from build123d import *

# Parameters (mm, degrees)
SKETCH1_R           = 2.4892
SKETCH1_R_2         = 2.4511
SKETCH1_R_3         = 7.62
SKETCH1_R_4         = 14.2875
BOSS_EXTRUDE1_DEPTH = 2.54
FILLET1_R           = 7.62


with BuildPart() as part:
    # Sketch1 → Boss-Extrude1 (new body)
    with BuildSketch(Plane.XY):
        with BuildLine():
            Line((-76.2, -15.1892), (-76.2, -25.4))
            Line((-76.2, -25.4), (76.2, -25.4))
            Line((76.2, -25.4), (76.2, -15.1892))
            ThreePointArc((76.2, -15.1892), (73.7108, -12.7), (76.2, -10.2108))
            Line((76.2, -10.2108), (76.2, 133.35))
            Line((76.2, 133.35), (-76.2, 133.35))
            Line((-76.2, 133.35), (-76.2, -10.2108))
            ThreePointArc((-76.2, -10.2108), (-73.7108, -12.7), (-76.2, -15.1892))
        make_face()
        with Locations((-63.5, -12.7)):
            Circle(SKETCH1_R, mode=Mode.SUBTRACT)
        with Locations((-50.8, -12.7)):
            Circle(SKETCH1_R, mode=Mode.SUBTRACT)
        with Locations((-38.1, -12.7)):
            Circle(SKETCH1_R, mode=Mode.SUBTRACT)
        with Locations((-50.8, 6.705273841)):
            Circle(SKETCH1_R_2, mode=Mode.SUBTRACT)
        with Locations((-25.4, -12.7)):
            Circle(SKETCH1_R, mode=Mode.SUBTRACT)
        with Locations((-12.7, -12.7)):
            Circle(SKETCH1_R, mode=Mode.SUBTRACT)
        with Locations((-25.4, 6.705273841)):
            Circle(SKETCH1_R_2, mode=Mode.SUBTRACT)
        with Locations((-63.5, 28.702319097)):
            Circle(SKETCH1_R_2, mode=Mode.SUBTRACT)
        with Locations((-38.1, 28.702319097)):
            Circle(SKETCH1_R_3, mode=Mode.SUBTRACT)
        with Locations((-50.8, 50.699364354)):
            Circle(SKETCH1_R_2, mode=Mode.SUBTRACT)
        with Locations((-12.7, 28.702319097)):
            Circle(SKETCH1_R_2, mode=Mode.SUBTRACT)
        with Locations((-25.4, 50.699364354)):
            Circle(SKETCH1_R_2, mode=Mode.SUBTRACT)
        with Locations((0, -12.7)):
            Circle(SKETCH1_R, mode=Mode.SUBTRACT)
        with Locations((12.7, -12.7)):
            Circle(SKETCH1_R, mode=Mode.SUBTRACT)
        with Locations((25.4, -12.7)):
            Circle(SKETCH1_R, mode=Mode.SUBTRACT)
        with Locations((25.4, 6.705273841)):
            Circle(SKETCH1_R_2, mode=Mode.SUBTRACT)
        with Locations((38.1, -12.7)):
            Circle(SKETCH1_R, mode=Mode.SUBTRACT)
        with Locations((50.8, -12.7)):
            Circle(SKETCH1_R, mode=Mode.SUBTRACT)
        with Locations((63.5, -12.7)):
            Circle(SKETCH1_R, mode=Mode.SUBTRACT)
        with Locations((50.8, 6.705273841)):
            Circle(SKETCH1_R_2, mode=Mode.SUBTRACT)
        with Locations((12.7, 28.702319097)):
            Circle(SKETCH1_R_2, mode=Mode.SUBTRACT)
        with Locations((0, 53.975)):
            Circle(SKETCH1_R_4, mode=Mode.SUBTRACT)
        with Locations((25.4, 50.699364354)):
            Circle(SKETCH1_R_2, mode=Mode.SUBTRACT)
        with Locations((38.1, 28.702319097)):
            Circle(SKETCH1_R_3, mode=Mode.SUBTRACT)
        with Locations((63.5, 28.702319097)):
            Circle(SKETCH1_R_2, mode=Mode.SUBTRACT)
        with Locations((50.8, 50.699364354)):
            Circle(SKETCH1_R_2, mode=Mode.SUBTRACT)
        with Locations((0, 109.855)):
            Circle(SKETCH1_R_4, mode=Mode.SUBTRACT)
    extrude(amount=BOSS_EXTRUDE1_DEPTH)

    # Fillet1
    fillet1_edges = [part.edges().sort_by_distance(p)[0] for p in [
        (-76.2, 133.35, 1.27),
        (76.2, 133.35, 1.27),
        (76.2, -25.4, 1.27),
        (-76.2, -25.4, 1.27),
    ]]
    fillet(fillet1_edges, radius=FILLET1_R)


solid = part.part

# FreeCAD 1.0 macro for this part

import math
import FreeCAD as App
import Part
import Sketcher

V = App.Vector
Q = App.Units.Quantity


def edges_at(feature, points):
    """Names of the edges that pass closest to the given points."""
    edges = feature.Shape.Edges
    near = lambda p: min(range(len(edges)), key=lambda i: edges[i].distToShape(Part.Vertex(*p))[0])
    return sorted({f"Edge{near(p) + 1}" for p in points})

doc = App.newDocument("Part")
params = doc.addObject("Spreadsheet::Sheet", "Params")
for row, (alias, value) in enumerate([
    ("sketch1_diameter", "0.6 in"),
    ("sketch1_width", "6 in"),
    ("sketch1_diameter2", "0.196 in"),
    ("sketch1_diameter3", "0.193 in"),
    ("sketch1_diameter4", "1.125 in"),
    ("pad1_length", "0.1 in"),
    ("fillet_radius", "0.3 in"),
], start=1):
    params.set(f"A{row}", alias)
    params.set(f"B{row}", "=" + value)
    params.setAlias(f"B{row}", alias)

body = doc.addObject("PartDesign::Body", "Body")

sketch1 = doc.addObject("Sketcher::SketchObject", "Sketch")
body.addObject(sketch1)
sketch1.AttachmentSupport = (doc.XY_Plane, [""])
sketch1.MapMode = "FlatFace"
sketch1.addGeometry(Part.LineSegment(V(-76.2, -15.2, 0), V(-76.2, -25.4, 0)), False)
sketch1.addGeometry(Part.LineSegment(V(-76.2, -25.4, 0), V(76.2, -25.4, 0)), False)
sketch1.addGeometry(Part.LineSegment(V(76.2, -25.4, 0), V(76.2, -15.2, 0)), False)
sketch1.addGeometry(Part.ArcOfCircle(Part.Circle(V(76.2, -12.7, 0), V(0, 0, 1), 2.5), math.radians(90), math.radians(270)), False)
sketch1.addGeometry(Part.LineSegment(V(76.2, -10.2, 0), V(76.2, 133.3, 0)), False)
sketch1.addGeometry(Part.LineSegment(V(76.2, 133.3, 0), V(-76.2, 133.3, 0)), False)
sketch1.addGeometry(Part.LineSegment(V(-76.2, 133.3, 0), V(-76.2, -10.2, 0)), False)
sketch1.addGeometry(Part.ArcOfCircle(Part.Circle(V(-76.2, -12.7, 0), V(0, 0, 1), 2.5), math.radians(-90), math.radians(90)), False)
sketch1.addGeometry(Part.Circle(V(-63.5, -12.7, 0), V(0, 0, 1), 2.5), False)
sketch1.addGeometry(Part.Circle(V(-50.8, -12.7, 0), V(0, 0, 1), 2.5), False)
sketch1.addGeometry(Part.Circle(V(-38.1, -12.7, 0), V(0, 0, 1), 2.5), False)
sketch1.addGeometry(Part.Circle(V(-50.8, 6.7, 0), V(0, 0, 1), 2.5), False)
sketch1.addGeometry(Part.Circle(V(-25.4, -12.7, 0), V(0, 0, 1), 2.5), False)
sketch1.addGeometry(Part.Circle(V(-12.7, -12.7, 0), V(0, 0, 1), 2.5), False)
sketch1.addGeometry(Part.Circle(V(-25.4, 6.7, 0), V(0, 0, 1), 2.5), False)
sketch1.addGeometry(Part.Circle(V(-63.5, 28.7, 0), V(0, 0, 1), 2.5), False)
sketch1.addGeometry(Part.Circle(V(-38.1, 28.7, 0), V(0, 0, 1), 7.6), False)
sketch1.addGeometry(Part.Circle(V(-50.8, 50.7, 0), V(0, 0, 1), 2.5), False)
sketch1.addGeometry(Part.Circle(V(-12.7, 28.7, 0), V(0, 0, 1), 2.5), False)
sketch1.addGeometry(Part.Circle(V(-25.4, 50.7, 0), V(0, 0, 1), 2.5), False)
sketch1.addGeometry(Part.Circle(V(0, -12.7, 0), V(0, 0, 1), 2.5), False)
sketch1.addGeometry(Part.Circle(V(12.7, -12.7, 0), V(0, 0, 1), 2.5), False)
sketch1.addGeometry(Part.Circle(V(25.4, -12.7, 0), V(0, 0, 1), 2.5), False)
sketch1.addGeometry(Part.Circle(V(25.4, 6.7, 0), V(0, 0, 1), 2.5), False)
sketch1.addGeometry(Part.Circle(V(38.1, -12.7, 0), V(0, 0, 1), 2.5), False)
sketch1.addGeometry(Part.Circle(V(50.8, -12.7, 0), V(0, 0, 1), 2.5), False)
sketch1.addGeometry(Part.Circle(V(63.5, -12.7, 0), V(0, 0, 1), 2.5), False)
sketch1.addGeometry(Part.Circle(V(50.8, 6.7, 0), V(0, 0, 1), 2.5), False)
sketch1.addGeometry(Part.Circle(V(12.7, 28.7, 0), V(0, 0, 1), 2.5), False)
sketch1.addGeometry(Part.Circle(V(0, 54, 0), V(0, 0, 1), 14.3), False)
sketch1.addGeometry(Part.Circle(V(25.4, 50.7, 0), V(0, 0, 1), 2.5), False)
sketch1.addGeometry(Part.Circle(V(38.1, 28.7, 0), V(0, 0, 1), 7.6), False)
sketch1.addGeometry(Part.Circle(V(63.5, 28.7, 0), V(0, 0, 1), 2.5), False)
sketch1.addGeometry(Part.Circle(V(50.8, 50.7, 0), V(0, 0, 1), 2.5), False)
sketch1.addGeometry(Part.Circle(V(0, 109.9, 0), V(0, 0, 1), 14.3), False)
sketch1.addConstraint(Sketcher.Constraint("Coincident", 0, 2, 1, 1))
sketch1.addConstraint(Sketcher.Constraint("Coincident", 1, 2, 2, 1))
sketch1.addConstraint(Sketcher.Constraint("Coincident", 2, 2, 3, 2))
sketch1.addConstraint(Sketcher.Constraint("Coincident", 3, 1, 4, 1))
sketch1.addConstraint(Sketcher.Constraint("Coincident", 4, 2, 5, 1))
sketch1.addConstraint(Sketcher.Constraint("Coincident", 5, 2, 6, 1))
sketch1.addConstraint(Sketcher.Constraint("Coincident", 6, 2, 7, 2))
sketch1.addConstraint(Sketcher.Constraint("Coincident", 7, 1, 0, 1))
sketch1.addConstraint(Sketcher.Constraint("Vertical", 0))
sketch1.addConstraint(Sketcher.Constraint("Horizontal", 1))
sketch1.addConstraint(Sketcher.Constraint("Vertical", 2))
sketch1.addConstraint(Sketcher.Constraint("Vertical", 4))
sketch1.addConstraint(Sketcher.Constraint("Horizontal", 5))
sketch1.addConstraint(Sketcher.Constraint("Vertical", 6))
sketch1.addConstraint(Sketcher.Constraint("Equal", 3, 7))
sketch1.addConstraint(Sketcher.Constraint("Equal", 7, 8))
sketch1.addConstraint(Sketcher.Constraint("Equal", 8, 9))
sketch1.addConstraint(Sketcher.Constraint("Equal", 9, 10))
sketch1.addConstraint(Sketcher.Constraint("Equal", 10, 12))
sketch1.addConstraint(Sketcher.Constraint("Equal", 12, 13))
sketch1.addConstraint(Sketcher.Constraint("Equal", 11, 14))
sketch1.addConstraint(Sketcher.Constraint("Equal", 14, 15))
sketch1.addConstraint(Sketcher.Constraint("Equal", 15, 17))
sketch1.addConstraint(Sketcher.Constraint("Equal", 17, 18))
sketch1.addConstraint(Sketcher.Constraint("Equal", 18, 19))
sketch1.addConstraint(Sketcher.Constraint("Equal", 13, 20))
sketch1.addConstraint(Sketcher.Constraint("Equal", 20, 21))
sketch1.addConstraint(Sketcher.Constraint("Equal", 21, 22))
sketch1.addConstraint(Sketcher.Constraint("Equal", 19, 23))
sketch1.addConstraint(Sketcher.Constraint("Equal", 22, 24))
sketch1.addConstraint(Sketcher.Constraint("Equal", 24, 25))
sketch1.addConstraint(Sketcher.Constraint("Equal", 25, 26))
sketch1.addConstraint(Sketcher.Constraint("Equal", 23, 27))
sketch1.addConstraint(Sketcher.Constraint("Equal", 27, 28))
sketch1.addConstraint(Sketcher.Constraint("Equal", 28, 30))
sketch1.addConstraint(Sketcher.Constraint("Equal", 16, 31))
sketch1.addConstraint(Sketcher.Constraint("Equal", 30, 32))
sketch1.addConstraint(Sketcher.Constraint("Equal", 32, 33))
sketch1.addConstraint(Sketcher.Constraint("Equal", 29, 34))
sketch1.addConstraint(Sketcher.Constraint("Symmetric", 3, 3, 7, 3, -2))
sketch1.addConstraint(Sketcher.Constraint("Symmetric", 13, 3, 21, 3, -2))
sketch1.addConstraint(Sketcher.Constraint("Symmetric", 12, 3, 22, 3, -2))
sketch1.addConstraint(Sketcher.Constraint("Symmetric", 14, 3, 23, 3, -2))
sketch1.addConstraint(Sketcher.Constraint("Symmetric", 10, 3, 24, 3, -2))
sketch1.addConstraint(Sketcher.Constraint("Symmetric", 9, 3, 25, 3, -2))
sketch1.addConstraint(Sketcher.Constraint("Symmetric", 8, 3, 26, 3, -2))
sketch1.addConstraint(Sketcher.Constraint("Symmetric", 11, 3, 27, 3, -2))
sketch1.addConstraint(Sketcher.Constraint("Symmetric", 18, 3, 28, 3, -2))
sketch1.addConstraint(Sketcher.Constraint("Symmetric", 19, 3, 30, 3, -2))
sketch1.addConstraint(Sketcher.Constraint("Symmetric", 16, 3, 31, 3, -2))
sketch1.addConstraint(Sketcher.Constraint("Symmetric", 15, 3, 32, 3, -2))
sketch1.addConstraint(Sketcher.Constraint("Symmetric", 17, 3, 33, 3, -2))
sketch1.addConstraint(Sketcher.Constraint("PointOnObject", 20, 3, -2))
sketch1.addConstraint(Sketcher.Constraint("PointOnObject", 29, 3, -2))
sketch1.addConstraint(Sketcher.Constraint("PointOnObject", 34, 3, -2))
sketch1.addConstraint(Sketcher.Constraint("Horizontal", 7, 3, 8, 3))
sketch1.addConstraint(Sketcher.Constraint("Horizontal", 8, 3, 9, 3))
sketch1.addConstraint(Sketcher.Constraint("Horizontal", 9, 3, 10, 3))
sketch1.addConstraint(Sketcher.Constraint("Horizontal", 10, 3, 12, 3))
sketch1.addConstraint(Sketcher.Constraint("Horizontal", 12, 3, 13, 3))
sketch1.addConstraint(Sketcher.Constraint("Horizontal", 11, 3, 14, 3))
sketch1.addConstraint(Sketcher.Constraint("Horizontal", 15, 3, 16, 3))
sketch1.addConstraint(Sketcher.Constraint("Horizontal", 16, 3, 18, 3))
sketch1.addConstraint(Sketcher.Constraint("Horizontal", 17, 3, 19, 3))
sketch1.addConstraint(Sketcher.Constraint("Horizontal", 13, 3, 20, 3))
sketch1.addConstraint(Sketcher.Constraint("Vertical", 9, 3, 11, 3))
sketch1.addConstraint(Sketcher.Constraint("Vertical", 12, 3, 14, 3))
sketch1.addConstraint(Sketcher.Constraint("Vertical", 8, 3, 15, 3))
sketch1.addConstraint(Sketcher.Constraint("Vertical", 10, 3, 16, 3))
sketch1.addConstraint(Sketcher.Constraint("Vertical", 11, 3, 17, 3))
sketch1.addConstraint(Sketcher.Constraint("Vertical", 13, 3, 18, 3))
sketch1.addConstraint(Sketcher.Constraint("Vertical", 14, 3, 19, 3))
sketch1.addConstraint(Sketcher.Constraint("Vertical", 7, 3, 0, 2))
sketch1.addConstraint(Sketcher.Constraint("Vertical", 3, 3, 1, 2))
sketch1.addConstraint(Sketcher.Constraint("Vertical", 2, 2, 3, 1))
sketch1.addConstraint(Sketcher.Constraint("Vertical", 0, 2, 5, 2))
sketch1.addConstraint(Sketcher.Constraint("Diameter", 16, Q("0.6 in")))
sketch1.addConstraint(Sketcher.Constraint("DistanceX", 1, 1, 1, 2, Q("6 in")))
sketch1.addConstraint(Sketcher.Constraint("Diameter", 8, Q("0.196 in")))
sketch1.addConstraint(Sketcher.Constraint("Diameter", 11, Q("0.193 in")))
sketch1.addConstraint(Sketcher.Constraint("Diameter", 29, Q("1.125 in")))
sketch1.addConstraint(Sketcher.Constraint("DistanceX", 9, 3, -1, 1, Q("2 in")))
sketch1.addConstraint(Sketcher.Constraint("DistanceX", 12, 3, -1, 1, Q("1 in")))
sketch1.addConstraint(Sketcher.Constraint("DistanceY", 0, 2, -1, 1, Q("1 in")))
sketch1.addConstraint(Sketcher.Constraint("DistanceX", 8, 3, 10, 3, Q("1 in")))
sketch1.addConstraint(Sketcher.Constraint("DistanceX", 10, 3, 13, 3, Q("1 in")))
sketch1.addConstraint(Sketcher.Constraint("DistanceX", 13, 3, 21, 3, Q("1 in")))
sketch1.addConstraint(Sketcher.Constraint("DistanceY", 3, 3, -1, 1, Q("0.5 in")))
sketch1.addConstraint(Sketcher.Constraint("DistanceY", 29, 3, 34, 3, Q("2.2 in")))
sketch1.addConstraint(Sketcher.Constraint("DistanceY", 4, 1, 4, 2, Q("5.652 in")))
sketch1.addConstraint(Sketcher.Constraint("DistanceY", -1, 1, 29, 3, Q("2.125 in")))
sketch1.addConstraint(Sketcher.Constraint("DistanceY", -1, 1, 15, 3, 28.702319))
sketch1.addConstraint(Sketcher.Constraint("DistanceY", 11, 3, 17, 3, 43.994091))
sketch1.addConstraint(Sketcher.Constraint("DistanceY", -1, 1, 11, 3, 6.705274))
sketch1.setExpression("Constraints[76]", "Params.sketch1_diameter")
sketch1.setExpression("Constraints[77]", "Params.sketch1_width")
sketch1.setExpression("Constraints[78]", "Params.sketch1_diameter2")
sketch1.setExpression("Constraints[79]", "Params.sketch1_diameter3")
sketch1.setExpression("Constraints[80]", "Params.sketch1_diameter4")
pad1 = doc.addObject("PartDesign::Pad", "Pad")
body.addObject(pad1)
pad1.Profile = sketch1
pad1.setExpression("Length", "Params.pad1_length")
doc.recompute()

fillet = doc.addObject("PartDesign::Fillet", "Fillet")
body.addObject(fillet)
fillet.Base = (pad1, edges_at(pad1, [
    (-76.2, 133.35, 1.27),
    (76.2, 133.35, 1.27),
    (76.2, -25.4, 1.27),
    (-76.2, -25.4, 1.27),
]))
fillet.setExpression("Radius", "Params.fillet_radius")

doc.recompute()
